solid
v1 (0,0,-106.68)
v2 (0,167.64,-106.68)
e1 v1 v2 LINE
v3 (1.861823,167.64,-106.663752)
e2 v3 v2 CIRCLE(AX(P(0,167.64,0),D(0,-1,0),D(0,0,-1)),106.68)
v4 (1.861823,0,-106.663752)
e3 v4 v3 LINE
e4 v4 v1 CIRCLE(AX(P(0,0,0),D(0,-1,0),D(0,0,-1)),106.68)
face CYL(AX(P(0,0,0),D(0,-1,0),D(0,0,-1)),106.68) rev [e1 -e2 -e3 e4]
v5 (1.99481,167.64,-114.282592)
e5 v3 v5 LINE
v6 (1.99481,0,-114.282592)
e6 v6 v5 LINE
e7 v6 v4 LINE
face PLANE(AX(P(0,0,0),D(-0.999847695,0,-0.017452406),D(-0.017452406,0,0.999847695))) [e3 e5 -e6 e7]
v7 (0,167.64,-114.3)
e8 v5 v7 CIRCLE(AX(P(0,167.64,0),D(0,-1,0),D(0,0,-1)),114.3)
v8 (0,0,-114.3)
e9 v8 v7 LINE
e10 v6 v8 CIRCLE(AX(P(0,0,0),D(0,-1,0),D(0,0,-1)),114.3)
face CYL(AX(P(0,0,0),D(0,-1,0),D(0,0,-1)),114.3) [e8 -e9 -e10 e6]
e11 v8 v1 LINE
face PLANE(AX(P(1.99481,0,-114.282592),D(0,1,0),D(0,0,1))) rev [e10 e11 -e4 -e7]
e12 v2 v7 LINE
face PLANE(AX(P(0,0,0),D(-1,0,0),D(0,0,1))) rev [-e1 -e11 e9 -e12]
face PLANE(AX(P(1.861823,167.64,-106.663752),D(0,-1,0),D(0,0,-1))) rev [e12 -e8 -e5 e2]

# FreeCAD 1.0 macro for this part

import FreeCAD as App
import Part
import Sketcher

V = App.Vector
Q = App.Units.Quantity

doc = App.newDocument("Part")
body = doc.addObject("PartDesign::Body", "Body")

sketch1 = body.newObject("Sketcher::SketchObject", "Sketch")
sketch1.AttachmentSupport = (doc.getObject("YZ_Plane"), [""])
sketch1.MapMode = "FlatFace"
sketch1.addGeometry([
    Part.LineSegment(V(168, -107, 0), V(0, -107, 0)),
    Part.LineSegment(V(0, -107, 0), V(0, -114, 0)),
    Part.LineSegment(V(0, -114, 0), V(168, -114, 0)),
    Part.LineSegment(V(168, -114, 0), V(168, -107, 0)),
], False)
sketch1.addConstraint([
    Sketcher.Constraint("Coincident", 0, 2, 1, 1),
    Sketcher.Constraint("Coincident", 1, 2, 2, 1),
    Sketcher.Constraint("Coincident", 2, 2, 3, 1),
    Sketcher.Constraint("Coincident", 3, 2, 0, 1),
    Sketcher.Constraint("Horizontal", 0),
    Sketcher.Constraint("Vertical", 1),
    Sketcher.Constraint("Horizontal", 2),
    Sketcher.Constraint("Vertical", 3),
    Sketcher.Constraint("PointOnObject", 0, 2, -2),
    Sketcher.Constraint("DistanceX", 0, 2, 0, 1, Q("6.6 in")),
    Sketcher.Constraint("DistanceY", 1, 2, 1, 1, Q("0.3 in")),
    Sketcher.Constraint("DistanceY", 0, 2, -1, 1, Q("4.2 in")),
])
revolution = body.newObject("PartDesign::Revolution", "Revolution")
revolution.Profile = sketch1
revolution.ReferenceAxis = (sketch1, ["H_Axis"])
revolution.Angle = 359

doc.recompute()
